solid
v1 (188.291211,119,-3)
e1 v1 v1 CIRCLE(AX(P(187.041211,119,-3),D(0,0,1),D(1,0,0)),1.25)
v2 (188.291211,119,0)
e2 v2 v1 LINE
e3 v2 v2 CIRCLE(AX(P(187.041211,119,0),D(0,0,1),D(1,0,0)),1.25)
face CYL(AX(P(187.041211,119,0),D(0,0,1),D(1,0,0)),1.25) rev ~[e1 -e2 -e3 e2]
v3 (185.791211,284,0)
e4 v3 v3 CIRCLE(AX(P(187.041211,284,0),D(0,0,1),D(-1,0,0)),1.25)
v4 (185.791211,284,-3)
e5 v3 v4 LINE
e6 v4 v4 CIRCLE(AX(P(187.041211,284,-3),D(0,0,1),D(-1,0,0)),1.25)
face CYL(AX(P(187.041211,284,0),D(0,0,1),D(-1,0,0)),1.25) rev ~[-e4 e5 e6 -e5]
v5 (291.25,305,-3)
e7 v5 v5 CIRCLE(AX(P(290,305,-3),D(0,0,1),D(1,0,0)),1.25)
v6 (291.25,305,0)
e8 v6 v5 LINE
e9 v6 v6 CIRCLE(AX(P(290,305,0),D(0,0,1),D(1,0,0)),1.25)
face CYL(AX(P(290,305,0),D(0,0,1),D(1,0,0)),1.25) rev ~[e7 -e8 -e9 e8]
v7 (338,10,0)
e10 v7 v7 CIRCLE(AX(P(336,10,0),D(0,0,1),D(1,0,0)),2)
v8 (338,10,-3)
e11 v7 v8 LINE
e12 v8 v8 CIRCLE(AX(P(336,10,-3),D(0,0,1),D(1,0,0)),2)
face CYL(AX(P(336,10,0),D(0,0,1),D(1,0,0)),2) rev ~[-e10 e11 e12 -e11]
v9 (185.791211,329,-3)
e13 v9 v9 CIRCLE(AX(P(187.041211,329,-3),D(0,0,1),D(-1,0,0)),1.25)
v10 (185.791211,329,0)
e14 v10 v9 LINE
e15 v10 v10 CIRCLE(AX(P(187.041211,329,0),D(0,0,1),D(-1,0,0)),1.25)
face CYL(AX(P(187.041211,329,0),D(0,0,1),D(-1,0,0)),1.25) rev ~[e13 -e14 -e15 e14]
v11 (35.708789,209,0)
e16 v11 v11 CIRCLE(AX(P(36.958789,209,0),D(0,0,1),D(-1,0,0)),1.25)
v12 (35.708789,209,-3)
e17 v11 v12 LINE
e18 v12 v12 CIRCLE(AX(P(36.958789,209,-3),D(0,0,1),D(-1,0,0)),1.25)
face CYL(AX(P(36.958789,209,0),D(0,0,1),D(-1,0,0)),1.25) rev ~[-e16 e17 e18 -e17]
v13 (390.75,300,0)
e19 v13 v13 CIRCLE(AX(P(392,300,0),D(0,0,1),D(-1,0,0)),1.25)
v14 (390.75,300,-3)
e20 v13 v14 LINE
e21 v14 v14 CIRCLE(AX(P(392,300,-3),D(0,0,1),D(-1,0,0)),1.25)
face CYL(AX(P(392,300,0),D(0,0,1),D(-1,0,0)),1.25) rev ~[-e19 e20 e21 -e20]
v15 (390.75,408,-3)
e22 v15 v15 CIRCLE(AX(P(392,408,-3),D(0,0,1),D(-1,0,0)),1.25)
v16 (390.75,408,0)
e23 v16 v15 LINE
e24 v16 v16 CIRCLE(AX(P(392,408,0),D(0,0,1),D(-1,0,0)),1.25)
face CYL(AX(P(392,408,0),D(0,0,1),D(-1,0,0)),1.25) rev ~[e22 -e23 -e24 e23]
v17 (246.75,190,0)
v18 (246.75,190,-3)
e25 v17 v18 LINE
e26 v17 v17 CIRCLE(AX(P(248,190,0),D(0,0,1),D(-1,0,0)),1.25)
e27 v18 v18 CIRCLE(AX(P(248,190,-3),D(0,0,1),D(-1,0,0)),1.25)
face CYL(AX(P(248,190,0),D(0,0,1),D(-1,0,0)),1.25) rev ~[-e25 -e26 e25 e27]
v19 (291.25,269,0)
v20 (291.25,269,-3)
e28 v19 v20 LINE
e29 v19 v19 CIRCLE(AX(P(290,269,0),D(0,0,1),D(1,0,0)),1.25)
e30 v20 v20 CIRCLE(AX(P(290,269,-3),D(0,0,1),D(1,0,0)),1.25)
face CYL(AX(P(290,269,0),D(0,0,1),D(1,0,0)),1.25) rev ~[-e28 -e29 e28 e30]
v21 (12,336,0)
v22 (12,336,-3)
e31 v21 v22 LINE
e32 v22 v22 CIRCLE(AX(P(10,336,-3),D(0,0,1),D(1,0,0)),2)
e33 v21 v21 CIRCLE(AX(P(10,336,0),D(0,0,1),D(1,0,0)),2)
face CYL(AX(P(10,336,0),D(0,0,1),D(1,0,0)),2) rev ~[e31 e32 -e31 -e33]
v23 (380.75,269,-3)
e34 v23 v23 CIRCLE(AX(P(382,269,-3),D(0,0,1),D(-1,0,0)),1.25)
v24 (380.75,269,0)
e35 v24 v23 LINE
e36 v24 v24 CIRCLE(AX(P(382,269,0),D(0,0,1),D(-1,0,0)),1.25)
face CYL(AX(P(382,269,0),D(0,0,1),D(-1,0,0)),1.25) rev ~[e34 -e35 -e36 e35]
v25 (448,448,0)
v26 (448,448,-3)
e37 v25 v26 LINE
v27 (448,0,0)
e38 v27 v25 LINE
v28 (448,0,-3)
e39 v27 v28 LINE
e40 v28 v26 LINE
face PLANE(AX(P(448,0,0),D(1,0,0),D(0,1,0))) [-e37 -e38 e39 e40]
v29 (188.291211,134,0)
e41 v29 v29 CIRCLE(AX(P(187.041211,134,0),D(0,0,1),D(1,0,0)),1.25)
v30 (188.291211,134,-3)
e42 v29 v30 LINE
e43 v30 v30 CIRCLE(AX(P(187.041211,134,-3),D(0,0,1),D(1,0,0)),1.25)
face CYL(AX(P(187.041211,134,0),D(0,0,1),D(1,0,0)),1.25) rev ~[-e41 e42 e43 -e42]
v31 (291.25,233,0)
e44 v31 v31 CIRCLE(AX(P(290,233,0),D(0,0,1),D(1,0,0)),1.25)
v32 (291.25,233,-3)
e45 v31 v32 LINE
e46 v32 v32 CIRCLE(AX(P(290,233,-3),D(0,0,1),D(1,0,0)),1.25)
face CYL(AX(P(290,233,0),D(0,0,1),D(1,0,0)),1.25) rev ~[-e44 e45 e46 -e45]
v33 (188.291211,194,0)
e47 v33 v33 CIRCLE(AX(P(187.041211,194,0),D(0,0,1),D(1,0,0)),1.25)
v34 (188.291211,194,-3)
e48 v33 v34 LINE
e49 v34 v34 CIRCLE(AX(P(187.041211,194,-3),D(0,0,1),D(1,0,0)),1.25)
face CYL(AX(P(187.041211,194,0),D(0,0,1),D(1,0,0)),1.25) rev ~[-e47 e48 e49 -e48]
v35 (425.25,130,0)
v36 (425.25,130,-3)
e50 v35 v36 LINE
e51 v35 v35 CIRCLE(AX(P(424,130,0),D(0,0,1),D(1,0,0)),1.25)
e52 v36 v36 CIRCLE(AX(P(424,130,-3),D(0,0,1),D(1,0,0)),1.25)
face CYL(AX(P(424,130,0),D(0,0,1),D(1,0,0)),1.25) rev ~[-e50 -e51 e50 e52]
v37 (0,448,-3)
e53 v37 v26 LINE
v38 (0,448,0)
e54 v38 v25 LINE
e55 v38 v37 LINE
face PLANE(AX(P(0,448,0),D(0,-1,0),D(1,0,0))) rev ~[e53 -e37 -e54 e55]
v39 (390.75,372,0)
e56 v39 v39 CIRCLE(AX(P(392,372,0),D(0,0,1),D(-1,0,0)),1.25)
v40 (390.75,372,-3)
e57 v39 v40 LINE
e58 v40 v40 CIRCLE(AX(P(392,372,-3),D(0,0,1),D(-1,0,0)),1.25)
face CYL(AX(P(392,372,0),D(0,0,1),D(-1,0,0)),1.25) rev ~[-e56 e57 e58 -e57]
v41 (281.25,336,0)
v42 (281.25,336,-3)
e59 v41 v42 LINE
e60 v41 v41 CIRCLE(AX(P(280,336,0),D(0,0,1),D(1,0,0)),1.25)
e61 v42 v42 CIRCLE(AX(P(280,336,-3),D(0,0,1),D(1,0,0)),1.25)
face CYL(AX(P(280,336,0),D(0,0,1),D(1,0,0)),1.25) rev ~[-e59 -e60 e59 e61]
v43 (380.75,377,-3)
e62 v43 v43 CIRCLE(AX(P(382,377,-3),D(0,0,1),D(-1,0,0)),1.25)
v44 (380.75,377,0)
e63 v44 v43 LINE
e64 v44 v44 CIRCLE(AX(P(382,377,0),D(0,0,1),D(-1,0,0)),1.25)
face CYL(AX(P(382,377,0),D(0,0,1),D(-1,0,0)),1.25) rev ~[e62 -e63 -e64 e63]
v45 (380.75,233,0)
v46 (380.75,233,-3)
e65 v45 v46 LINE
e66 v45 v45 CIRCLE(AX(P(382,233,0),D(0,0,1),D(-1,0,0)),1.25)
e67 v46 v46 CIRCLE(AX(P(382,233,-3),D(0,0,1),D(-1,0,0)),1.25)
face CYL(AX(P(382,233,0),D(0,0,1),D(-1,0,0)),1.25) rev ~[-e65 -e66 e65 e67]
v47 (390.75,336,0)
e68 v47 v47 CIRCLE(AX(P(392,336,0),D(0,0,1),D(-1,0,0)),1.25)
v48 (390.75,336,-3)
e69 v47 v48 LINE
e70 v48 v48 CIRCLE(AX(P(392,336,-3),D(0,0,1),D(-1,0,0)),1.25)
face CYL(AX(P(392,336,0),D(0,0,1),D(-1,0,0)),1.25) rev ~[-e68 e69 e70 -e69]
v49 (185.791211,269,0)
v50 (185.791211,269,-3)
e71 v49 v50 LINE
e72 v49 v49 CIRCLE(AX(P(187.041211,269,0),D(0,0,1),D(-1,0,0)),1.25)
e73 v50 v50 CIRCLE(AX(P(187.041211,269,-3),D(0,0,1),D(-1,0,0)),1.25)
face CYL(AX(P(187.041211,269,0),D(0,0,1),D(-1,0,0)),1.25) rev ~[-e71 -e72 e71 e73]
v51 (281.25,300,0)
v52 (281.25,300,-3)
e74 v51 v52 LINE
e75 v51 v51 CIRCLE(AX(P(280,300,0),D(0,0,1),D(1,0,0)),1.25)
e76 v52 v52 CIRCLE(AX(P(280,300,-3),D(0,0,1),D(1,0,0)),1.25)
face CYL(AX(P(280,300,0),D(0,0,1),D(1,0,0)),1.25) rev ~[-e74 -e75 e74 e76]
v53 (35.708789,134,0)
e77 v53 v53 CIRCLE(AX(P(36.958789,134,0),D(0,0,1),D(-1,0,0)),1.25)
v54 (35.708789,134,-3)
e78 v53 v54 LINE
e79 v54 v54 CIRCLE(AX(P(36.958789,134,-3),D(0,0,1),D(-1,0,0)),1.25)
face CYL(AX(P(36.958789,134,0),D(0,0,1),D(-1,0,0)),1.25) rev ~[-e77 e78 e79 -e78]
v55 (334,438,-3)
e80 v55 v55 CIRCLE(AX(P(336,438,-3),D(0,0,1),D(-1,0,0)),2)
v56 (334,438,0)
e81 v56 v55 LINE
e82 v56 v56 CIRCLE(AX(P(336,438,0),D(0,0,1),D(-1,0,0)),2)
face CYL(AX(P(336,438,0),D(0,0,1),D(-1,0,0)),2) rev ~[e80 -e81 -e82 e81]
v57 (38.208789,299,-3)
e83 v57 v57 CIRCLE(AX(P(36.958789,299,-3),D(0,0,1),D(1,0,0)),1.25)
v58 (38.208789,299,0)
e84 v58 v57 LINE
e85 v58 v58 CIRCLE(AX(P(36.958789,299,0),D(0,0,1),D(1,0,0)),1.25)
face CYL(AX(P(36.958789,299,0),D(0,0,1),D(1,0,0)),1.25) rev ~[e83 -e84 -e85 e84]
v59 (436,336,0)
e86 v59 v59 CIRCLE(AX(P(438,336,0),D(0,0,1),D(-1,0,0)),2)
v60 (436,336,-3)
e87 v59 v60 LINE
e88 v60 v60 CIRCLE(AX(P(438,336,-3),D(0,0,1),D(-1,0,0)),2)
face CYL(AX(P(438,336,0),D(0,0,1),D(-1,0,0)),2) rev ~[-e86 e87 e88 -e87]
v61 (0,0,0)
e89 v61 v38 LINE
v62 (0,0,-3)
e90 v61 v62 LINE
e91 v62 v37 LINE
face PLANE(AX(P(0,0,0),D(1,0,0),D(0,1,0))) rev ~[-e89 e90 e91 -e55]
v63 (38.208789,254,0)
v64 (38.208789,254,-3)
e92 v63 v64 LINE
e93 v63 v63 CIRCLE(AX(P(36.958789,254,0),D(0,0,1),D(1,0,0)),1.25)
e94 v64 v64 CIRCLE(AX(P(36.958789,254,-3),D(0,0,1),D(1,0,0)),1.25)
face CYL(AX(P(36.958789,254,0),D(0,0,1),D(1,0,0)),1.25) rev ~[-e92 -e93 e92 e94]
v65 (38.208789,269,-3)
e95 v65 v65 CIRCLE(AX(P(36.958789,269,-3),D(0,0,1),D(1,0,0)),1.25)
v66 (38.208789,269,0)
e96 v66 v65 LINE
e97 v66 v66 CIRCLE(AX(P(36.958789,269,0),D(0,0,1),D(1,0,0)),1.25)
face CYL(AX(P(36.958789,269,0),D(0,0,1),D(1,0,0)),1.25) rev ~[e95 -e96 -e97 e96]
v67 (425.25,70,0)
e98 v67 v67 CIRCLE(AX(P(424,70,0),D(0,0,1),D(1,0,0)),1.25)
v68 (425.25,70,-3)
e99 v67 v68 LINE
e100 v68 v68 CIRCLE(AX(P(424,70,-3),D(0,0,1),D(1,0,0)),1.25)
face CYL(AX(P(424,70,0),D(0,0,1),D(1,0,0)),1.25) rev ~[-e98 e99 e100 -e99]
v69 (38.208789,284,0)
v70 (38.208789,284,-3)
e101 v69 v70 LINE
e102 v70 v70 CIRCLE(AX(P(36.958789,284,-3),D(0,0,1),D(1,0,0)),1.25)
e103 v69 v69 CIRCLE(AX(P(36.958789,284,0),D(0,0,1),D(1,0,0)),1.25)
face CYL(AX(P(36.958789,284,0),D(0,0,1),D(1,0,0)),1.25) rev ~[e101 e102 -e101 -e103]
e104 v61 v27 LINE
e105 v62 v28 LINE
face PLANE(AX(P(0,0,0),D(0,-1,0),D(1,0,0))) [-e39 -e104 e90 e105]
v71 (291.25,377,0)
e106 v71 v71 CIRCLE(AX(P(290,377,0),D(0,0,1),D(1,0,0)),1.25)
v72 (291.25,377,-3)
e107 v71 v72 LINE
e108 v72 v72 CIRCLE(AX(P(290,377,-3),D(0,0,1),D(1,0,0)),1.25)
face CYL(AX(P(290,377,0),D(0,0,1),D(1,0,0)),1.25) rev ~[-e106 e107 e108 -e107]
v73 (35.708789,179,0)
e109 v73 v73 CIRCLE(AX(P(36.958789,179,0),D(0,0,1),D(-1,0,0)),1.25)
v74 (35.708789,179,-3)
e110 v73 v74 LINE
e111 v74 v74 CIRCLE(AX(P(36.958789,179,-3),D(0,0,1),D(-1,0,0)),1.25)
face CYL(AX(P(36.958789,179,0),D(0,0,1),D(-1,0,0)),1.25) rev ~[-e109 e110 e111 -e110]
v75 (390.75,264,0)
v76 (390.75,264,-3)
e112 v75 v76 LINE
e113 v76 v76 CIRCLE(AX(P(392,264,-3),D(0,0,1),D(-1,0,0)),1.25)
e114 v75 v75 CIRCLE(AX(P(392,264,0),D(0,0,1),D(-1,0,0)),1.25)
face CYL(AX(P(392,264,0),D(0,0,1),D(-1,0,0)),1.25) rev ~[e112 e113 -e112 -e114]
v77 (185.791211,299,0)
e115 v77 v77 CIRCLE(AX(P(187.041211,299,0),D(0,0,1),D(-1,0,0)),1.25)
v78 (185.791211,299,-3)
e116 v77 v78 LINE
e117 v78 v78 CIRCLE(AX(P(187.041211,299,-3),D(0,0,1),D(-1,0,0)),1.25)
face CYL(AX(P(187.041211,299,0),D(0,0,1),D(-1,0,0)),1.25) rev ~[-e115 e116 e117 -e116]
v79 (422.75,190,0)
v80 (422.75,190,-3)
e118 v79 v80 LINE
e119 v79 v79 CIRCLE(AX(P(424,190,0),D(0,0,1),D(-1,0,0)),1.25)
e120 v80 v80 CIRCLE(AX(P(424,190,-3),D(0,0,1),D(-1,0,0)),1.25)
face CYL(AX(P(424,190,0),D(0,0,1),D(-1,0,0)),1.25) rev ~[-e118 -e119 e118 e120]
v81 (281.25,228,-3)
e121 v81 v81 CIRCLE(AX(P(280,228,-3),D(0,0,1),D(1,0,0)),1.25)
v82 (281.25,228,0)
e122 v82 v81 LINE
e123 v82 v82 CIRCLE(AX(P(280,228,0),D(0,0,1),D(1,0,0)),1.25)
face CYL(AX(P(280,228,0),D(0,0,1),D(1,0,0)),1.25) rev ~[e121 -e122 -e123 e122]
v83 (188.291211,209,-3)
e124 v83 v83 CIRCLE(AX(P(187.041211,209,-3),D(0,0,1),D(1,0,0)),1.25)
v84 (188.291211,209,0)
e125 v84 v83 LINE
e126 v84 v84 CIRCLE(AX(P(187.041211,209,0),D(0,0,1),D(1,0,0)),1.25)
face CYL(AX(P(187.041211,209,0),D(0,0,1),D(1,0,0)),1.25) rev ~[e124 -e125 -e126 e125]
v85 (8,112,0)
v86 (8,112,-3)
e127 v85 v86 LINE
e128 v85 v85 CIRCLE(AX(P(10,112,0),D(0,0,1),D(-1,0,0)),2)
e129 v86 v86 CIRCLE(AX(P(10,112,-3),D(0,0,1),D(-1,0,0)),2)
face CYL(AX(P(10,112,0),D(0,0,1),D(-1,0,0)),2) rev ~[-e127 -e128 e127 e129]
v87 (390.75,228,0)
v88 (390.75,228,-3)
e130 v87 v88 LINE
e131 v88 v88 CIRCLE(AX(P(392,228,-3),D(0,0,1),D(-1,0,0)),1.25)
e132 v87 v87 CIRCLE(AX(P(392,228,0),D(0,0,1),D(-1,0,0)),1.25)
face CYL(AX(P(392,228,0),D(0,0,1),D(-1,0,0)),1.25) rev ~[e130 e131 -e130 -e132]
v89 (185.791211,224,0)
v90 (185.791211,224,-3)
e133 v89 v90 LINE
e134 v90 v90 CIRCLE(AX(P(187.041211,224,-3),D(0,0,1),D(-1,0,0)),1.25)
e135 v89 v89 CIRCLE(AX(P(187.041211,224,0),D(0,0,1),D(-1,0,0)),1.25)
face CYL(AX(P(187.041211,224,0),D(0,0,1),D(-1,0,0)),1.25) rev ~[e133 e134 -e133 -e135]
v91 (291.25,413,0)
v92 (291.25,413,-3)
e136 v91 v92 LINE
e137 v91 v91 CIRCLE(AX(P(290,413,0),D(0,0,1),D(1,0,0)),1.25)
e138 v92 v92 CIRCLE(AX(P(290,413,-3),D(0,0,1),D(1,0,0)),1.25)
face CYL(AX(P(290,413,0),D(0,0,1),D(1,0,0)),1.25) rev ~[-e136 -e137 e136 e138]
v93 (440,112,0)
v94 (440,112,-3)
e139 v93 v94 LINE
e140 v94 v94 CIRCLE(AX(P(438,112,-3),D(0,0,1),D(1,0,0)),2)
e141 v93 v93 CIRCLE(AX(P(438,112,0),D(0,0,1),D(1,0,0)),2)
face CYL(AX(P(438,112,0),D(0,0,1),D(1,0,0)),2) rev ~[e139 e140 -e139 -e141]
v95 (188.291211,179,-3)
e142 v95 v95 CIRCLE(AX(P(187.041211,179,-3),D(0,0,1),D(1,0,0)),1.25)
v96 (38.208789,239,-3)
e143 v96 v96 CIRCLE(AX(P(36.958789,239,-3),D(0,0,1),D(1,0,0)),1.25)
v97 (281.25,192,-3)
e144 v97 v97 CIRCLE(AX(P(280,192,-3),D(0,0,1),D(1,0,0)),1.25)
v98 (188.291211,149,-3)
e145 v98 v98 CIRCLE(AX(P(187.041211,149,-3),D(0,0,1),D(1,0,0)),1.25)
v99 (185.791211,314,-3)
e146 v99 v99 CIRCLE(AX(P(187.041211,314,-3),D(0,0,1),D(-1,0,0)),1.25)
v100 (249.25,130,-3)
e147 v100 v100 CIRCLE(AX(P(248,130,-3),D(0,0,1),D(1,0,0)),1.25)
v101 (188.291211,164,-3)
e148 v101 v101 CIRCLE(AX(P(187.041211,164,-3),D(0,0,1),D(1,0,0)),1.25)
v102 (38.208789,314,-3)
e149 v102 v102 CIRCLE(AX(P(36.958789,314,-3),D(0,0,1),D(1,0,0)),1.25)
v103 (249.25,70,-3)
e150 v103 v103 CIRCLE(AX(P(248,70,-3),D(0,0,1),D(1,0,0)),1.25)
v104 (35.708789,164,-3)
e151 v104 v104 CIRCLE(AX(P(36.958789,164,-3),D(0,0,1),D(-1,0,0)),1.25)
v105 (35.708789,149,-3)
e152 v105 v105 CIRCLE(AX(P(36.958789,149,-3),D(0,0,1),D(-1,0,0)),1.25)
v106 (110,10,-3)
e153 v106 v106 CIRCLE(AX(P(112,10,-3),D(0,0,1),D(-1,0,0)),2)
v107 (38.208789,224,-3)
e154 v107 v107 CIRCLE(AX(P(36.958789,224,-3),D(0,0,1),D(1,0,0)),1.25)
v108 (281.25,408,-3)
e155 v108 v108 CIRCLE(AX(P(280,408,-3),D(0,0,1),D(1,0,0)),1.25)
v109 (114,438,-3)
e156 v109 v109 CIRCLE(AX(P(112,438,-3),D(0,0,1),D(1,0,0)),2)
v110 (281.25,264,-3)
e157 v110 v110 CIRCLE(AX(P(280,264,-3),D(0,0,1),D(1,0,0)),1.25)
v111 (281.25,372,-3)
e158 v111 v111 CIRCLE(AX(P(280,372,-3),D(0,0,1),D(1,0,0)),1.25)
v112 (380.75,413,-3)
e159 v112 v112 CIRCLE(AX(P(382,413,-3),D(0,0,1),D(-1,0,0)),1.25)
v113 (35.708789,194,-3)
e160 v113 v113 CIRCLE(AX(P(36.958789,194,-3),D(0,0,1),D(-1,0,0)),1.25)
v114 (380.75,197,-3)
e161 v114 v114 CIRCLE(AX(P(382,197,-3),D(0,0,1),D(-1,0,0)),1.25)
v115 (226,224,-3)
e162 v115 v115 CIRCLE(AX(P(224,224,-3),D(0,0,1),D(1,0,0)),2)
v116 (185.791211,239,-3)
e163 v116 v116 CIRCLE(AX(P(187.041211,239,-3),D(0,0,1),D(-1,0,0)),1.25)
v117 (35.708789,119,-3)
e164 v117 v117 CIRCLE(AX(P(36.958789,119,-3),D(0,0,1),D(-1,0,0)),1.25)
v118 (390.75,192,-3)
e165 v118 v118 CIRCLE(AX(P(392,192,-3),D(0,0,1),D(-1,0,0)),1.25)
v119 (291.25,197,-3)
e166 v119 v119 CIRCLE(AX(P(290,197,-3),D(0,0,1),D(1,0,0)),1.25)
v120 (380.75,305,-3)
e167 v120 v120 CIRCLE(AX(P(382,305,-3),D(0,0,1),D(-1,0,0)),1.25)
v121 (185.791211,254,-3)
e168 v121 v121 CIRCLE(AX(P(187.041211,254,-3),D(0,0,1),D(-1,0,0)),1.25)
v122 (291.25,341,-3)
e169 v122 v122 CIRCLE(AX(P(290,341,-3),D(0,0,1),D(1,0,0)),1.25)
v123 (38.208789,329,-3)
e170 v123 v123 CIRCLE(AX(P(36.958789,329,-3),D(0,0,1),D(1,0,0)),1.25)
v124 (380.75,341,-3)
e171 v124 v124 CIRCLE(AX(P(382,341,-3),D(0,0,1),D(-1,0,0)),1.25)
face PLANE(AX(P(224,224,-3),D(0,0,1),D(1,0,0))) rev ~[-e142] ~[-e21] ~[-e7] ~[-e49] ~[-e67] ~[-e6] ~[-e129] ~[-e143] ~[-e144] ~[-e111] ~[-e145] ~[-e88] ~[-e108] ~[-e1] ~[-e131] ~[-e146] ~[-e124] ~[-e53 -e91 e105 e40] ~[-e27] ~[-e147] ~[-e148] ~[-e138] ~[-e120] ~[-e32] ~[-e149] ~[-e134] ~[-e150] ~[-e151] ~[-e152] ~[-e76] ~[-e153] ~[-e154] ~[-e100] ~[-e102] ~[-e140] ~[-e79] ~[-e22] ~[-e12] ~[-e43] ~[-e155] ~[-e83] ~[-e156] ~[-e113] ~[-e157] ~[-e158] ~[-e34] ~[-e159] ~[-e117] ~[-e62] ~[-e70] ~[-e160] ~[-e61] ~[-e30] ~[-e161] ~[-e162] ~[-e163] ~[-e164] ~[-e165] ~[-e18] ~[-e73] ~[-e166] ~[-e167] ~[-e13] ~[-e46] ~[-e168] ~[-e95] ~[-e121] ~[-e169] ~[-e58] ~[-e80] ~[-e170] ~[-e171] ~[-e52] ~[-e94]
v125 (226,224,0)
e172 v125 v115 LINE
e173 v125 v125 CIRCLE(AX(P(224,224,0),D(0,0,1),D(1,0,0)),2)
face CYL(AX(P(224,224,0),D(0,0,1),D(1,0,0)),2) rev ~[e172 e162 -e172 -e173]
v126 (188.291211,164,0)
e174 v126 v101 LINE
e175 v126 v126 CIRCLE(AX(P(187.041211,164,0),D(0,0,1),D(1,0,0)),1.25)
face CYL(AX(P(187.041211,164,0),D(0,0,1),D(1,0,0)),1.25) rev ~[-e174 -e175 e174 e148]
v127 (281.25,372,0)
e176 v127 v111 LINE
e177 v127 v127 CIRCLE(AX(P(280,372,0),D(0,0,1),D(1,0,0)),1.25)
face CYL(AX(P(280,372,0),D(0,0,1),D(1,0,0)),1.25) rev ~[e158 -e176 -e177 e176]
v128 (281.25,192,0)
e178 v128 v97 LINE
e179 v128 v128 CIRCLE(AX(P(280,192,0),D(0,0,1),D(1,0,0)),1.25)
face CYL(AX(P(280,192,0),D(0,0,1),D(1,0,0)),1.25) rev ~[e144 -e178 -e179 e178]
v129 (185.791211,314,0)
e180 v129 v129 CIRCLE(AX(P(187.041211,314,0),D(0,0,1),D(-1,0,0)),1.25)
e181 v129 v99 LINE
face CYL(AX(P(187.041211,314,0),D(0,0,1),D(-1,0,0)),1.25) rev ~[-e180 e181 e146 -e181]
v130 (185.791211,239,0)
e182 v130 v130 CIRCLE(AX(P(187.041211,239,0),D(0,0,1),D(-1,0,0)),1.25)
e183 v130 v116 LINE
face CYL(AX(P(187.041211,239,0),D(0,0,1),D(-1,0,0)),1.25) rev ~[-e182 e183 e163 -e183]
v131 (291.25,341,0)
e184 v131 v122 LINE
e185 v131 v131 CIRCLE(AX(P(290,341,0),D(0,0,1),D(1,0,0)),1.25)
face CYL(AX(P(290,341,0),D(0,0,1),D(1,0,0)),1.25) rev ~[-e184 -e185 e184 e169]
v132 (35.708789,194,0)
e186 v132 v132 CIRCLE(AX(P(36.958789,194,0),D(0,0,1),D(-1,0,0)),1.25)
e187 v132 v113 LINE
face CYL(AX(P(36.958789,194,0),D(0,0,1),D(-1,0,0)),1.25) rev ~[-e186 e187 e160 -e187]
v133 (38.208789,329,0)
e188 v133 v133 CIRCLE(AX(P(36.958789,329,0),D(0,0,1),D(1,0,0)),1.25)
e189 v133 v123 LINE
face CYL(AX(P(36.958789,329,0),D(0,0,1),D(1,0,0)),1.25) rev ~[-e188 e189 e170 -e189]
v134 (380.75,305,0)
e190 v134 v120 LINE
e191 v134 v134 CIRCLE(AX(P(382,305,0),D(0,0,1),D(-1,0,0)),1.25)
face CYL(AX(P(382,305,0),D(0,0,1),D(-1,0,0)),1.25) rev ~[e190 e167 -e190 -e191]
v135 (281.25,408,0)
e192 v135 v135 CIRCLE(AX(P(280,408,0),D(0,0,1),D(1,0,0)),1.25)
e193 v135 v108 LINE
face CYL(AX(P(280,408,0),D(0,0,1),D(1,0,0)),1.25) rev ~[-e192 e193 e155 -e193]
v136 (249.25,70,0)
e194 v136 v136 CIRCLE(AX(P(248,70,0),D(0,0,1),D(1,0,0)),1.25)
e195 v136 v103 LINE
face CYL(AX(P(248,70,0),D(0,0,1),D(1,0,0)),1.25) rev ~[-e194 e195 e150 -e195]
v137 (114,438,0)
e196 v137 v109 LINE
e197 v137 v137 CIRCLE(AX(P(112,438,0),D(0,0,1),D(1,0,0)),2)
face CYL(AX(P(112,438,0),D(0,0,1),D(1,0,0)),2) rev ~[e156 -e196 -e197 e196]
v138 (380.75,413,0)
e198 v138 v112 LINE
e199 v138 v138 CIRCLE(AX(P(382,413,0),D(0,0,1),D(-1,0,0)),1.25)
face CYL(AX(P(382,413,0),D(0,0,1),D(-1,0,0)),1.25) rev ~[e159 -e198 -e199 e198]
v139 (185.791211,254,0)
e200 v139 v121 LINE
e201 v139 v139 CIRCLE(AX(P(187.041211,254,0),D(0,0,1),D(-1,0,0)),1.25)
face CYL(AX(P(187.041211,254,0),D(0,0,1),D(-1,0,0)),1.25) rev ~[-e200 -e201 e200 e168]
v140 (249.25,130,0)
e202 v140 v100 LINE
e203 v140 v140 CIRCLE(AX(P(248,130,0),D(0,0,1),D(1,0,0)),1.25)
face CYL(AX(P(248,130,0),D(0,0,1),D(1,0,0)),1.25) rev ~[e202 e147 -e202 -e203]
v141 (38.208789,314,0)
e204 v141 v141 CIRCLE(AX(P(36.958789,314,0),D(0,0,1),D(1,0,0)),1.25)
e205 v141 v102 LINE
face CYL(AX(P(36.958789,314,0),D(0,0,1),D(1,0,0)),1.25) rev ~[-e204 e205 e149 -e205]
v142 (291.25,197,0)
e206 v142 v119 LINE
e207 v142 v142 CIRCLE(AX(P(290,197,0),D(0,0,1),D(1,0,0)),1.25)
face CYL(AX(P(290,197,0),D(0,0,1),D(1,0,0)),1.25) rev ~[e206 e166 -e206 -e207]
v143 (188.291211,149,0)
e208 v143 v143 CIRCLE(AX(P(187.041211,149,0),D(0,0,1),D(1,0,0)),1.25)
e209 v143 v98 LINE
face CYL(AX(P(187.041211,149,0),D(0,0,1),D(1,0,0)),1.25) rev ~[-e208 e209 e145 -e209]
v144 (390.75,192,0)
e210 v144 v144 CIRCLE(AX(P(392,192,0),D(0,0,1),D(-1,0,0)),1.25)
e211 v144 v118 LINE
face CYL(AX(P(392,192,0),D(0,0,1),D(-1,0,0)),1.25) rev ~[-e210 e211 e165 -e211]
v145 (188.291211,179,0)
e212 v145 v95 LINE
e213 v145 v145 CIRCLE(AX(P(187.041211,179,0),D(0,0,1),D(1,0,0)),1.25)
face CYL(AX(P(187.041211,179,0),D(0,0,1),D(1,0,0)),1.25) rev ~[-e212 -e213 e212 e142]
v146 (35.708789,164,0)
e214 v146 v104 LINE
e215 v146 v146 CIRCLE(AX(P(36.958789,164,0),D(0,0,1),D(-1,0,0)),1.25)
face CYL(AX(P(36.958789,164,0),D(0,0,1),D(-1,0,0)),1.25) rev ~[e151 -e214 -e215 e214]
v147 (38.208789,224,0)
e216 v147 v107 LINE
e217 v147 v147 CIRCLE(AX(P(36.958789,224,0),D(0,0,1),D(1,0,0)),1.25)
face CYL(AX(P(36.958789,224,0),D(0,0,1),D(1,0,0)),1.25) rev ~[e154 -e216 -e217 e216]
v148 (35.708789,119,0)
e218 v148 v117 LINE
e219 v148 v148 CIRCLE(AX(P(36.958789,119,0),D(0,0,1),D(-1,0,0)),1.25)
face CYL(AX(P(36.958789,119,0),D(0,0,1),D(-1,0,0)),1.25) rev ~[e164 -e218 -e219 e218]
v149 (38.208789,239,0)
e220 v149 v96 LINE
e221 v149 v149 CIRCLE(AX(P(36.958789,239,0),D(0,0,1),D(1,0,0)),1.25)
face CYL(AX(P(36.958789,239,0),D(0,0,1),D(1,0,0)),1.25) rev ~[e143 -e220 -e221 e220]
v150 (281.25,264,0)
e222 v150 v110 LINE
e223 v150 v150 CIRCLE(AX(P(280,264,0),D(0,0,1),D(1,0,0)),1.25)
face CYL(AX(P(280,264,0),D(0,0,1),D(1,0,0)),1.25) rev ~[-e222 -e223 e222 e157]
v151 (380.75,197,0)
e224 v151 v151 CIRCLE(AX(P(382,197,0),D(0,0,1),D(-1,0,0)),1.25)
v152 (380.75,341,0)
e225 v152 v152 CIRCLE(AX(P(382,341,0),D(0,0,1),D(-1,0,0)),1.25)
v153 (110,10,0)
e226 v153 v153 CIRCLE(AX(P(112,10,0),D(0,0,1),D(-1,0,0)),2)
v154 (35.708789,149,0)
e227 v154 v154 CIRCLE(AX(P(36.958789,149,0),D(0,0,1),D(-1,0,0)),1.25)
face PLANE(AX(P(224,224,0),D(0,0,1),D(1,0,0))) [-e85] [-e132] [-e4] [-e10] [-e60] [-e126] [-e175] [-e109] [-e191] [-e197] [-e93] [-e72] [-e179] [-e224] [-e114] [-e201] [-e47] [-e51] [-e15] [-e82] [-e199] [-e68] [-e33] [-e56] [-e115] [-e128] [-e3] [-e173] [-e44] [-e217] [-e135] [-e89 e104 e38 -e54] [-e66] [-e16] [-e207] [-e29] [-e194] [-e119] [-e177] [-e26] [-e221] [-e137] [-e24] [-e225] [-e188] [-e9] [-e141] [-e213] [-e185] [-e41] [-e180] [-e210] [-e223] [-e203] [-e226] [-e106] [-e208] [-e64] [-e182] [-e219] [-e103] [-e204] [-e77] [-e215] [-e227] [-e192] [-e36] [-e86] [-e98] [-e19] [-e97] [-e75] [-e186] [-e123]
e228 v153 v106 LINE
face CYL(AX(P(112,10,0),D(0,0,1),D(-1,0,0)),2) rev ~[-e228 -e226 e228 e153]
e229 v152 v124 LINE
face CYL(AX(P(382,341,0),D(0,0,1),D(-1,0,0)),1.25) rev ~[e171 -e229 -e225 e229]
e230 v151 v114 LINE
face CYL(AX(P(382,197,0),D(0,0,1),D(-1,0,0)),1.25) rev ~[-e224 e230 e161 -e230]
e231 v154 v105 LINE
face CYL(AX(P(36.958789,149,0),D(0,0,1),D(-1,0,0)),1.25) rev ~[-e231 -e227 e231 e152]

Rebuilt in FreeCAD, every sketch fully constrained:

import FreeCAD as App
import Part
import Sketcher
from FreeCAD import Vector
Q = App.Units.Quantity


def add_polygon(sketch, points):
    """Adds a closed chain of lines whose ends are joined by coincident constraints."""
    first, n = sketch.GeometryCount, len(points)
    for a, b in zip(points, points[1:] + points[:1]):
        sketch.addGeometry(Part.LineSegment(App.Vector(*a, 0), App.Vector(*b, 0)), False)
    for i in range(n):
        sketch.addConstraint(Sketcher.Constraint("Coincident", first + i, 2, first + (i + 1) % n, 1))

doc = App.newDocument("Part")
body = doc.addObject("PartDesign::Body", "Body")

sketch1 = body.newObject("Sketcher::SketchObject", "Sketch")
sketch1.AttachmentSupport = (doc.getObject("XY_Plane"), [""])
sketch1.MapMode = "FlatFace"
add_polygon(sketch1, [(0, 448), (0, 0), (448, 0), (448, 448)])
sketch1.addGeometry(Part.Circle(Vector(112, 10, 0), Vector(0, 0, 1), 2), False)
sketch1.addGeometry(Part.Circle(Vector(10, 112, 0), Vector(0, 0, 1), 2), False)
sketch1.addGeometry(Part.Circle(Vector(36.958789, 119, 0), Vector(0, 0, 1), 1.25), False)
sketch1.addGeometry(Part.Circle(Vector(36.958789, 134, 0), Vector(0, 0, 1), 1.25), False)
sketch1.addGeometry(Part.Circle(Vector(36.958789, 149, 0), Vector(0, 0, 1), 1.25), False)
sketch1.addGeometry(Part.Circle(Vector(36.958789, 164, 0), Vector(0, 0, 1), 1.25), False)
sketch1.addGeometry(Part.Circle(Vector(36.958789, 179, 0), Vector(0, 0, 1), 1.25), False)
sketch1.addGeometry(Part.Circle(Vector(36.958789, 194, 0), Vector(0, 0, 1), 1.25), False)
sketch1.addGeometry(Part.Circle(Vector(36.958789, 209, 0), Vector(0, 0, 1), 1.25), False)
sketch1.addGeometry(Part.Circle(Vector(187.041211, 119, 0), Vector(0, 0, 1), 1.25), False)
sketch1.addGeometry(Part.Circle(Vector(187.041211, 134, 0), Vector(0, 0, 1), 1.25), False)
sketch1.addGeometry(Part.Circle(Vector(187.041211, 149, 0), Vector(0, 0, 1), 1.25), False)
sketch1.addGeometry(Part.Circle(Vector(187.041211, 164, 0), Vector(0, 0, 1), 1.25), False)
sketch1.addGeometry(Part.Circle(Vector(187.041211, 179, 0), Vector(0, 0, 1), 1.25), False)
sketch1.addGeometry(Part.Circle(Vector(187.041211, 194, 0), Vector(0, 0, 1), 1.25), False)
sketch1.addGeometry(Part.Circle(Vector(187.041211, 209, 0), Vector(0, 0, 1), 1.25), False)
sketch1.addGeometry(Part.Circle(Vector(248, 70, 0), Vector(0, 0, 1), 1.25), False)
sketch1.addGeometry(Part.Circle(Vector(336, 10, 0), Vector(0, 0, 1), 2), False)
sketch1.addGeometry(Part.Circle(Vector(424, 70, 0), Vector(0, 0, 1), 1.25), False)
sketch1.addGeometry(Part.Circle(Vector(438, 112, 0), Vector(0, 0, 1), 2), False)
sketch1.addGeometry(Part.Circle(Vector(248, 130, 0), Vector(0, 0, 1), 1.25), False)
sketch1.addGeometry(Part.Circle(Vector(248, 190, 0), Vector(0, 0, 1), 1.25), False)
sketch1.addGeometry(Part.Circle(Vector(280, 192, 0), Vector(0, 0, 1), 1.25), False)
sketch1.addGeometry(Part.Circle(Vector(290, 197, 0), Vector(0, 0, 1), 1.25), False)
sketch1.addGeometry(Part.Circle(Vector(424, 130, 0), Vector(0, 0, 1), 1.25), False)
sketch1.addGeometry(Part.Circle(Vector(382, 197, 0), Vector(0, 0, 1), 1.25), False)
sketch1.addGeometry(Part.Circle(Vector(392, 192, 0), Vector(0, 0, 1), 1.25), False)
sketch1.addGeometry(Part.Circle(Vector(424, 190, 0), Vector(0, 0, 1), 1.25), False)
sketch1.addGeometry(Part.Circle(Vector(36.958789, 224, 0), Vector(0, 0, 1), 1.25), False)
sketch1.addGeometry(Part.Circle(Vector(36.958789, 239, 0), Vector(0, 0, 1), 1.25), False)
sketch1.addGeometry(Part.Circle(Vector(36.958789, 254, 0), Vector(0, 0, 1), 1.25), False)
sketch1.addGeometry(Part.Circle(Vector(36.958789, 269, 0), Vector(0, 0, 1), 1.25), False)
sketch1.addGeometry(Part.Circle(Vector(36.958789, 284, 0), Vector(0, 0, 1), 1.25), False)
sketch1.addGeometry(Part.Circle(Vector(36.958789, 299, 0), Vector(0, 0, 1), 1.25), False)
sketch1.addGeometry(Part.Circle(Vector(36.958789, 314, 0), Vector(0, 0, 1), 1.25), False)
sketch1.addGeometry(Part.Circle(Vector(36.958789, 329, 0), Vector(0, 0, 1), 1.25), False)
sketch1.addGeometry(Part.Circle(Vector(187.041211, 224, 0), Vector(0, 0, 1), 1.25), False)
sketch1.addGeometry(Part.Circle(Vector(187.041211, 239, 0), Vector(0, 0, 1), 1.25), False)
sketch1.addGeometry(Part.Circle(Vector(187.041211, 254, 0), Vector(0, 0, 1), 1.25), False)
sketch1.addGeometry(Part.Circle(Vector(187.041211, 269, 0), Vector(0, 0, 1), 1.25), False)
sketch1.addGeometry(Part.Circle(Vector(187.041211, 284, 0), Vector(0, 0, 1), 1.25), False)
sketch1.addGeometry(Part.Circle(Vector(187.041211, 299, 0), Vector(0, 0, 1), 1.25), False)
sketch1.addGeometry(Part.Circle(Vector(187.041211, 314, 0), Vector(0, 0, 1), 1.25), False)
sketch1.addGeometry(Part.Circle(Vector(187.041211, 329, 0), Vector(0, 0, 1), 1.25), False)
sketch1.addGeometry(Part.Circle(Vector(10, 336, 0), Vector(0, 0, 1), 2), False)
sketch1.addGeometry(Part.Circle(Vector(112, 438, 0), Vector(0, 0, 1), 2), False)
sketch1.addGeometry(Part.Circle(Vector(224, 224, 0), Vector(0, 0, 1), 2), False)
sketch1.addGeometry(Part.Circle(Vector(280, 228, 0), Vector(0, 0, 1), 1.25), False)
sketch1.addGeometry(Part.Circle(Vector(290, 233, 0), Vector(0, 0, 1), 1.25), False)
sketch1.addGeometry(Part.Circle(Vector(280, 264, 0), Vector(0, 0, 1), 1.25), False)
sketch1.addGeometry(Part.Circle(Vector(290, 269, 0), Vector(0, 0, 1), 1.25), False)
sketch1.addGeometry(Part.Circle(Vector(280, 300, 0), Vector(0, 0, 1), 1.25), False)
sketch1.addGeometry(Part.Circle(Vector(290, 305, 0), Vector(0, 0, 1), 1.25), False)
sketch1.addGeometry(Part.Circle(Vector(382, 233, 0), Vector(0, 0, 1), 1.25), False)
sketch1.addGeometry(Part.Circle(Vector(382, 269, 0), Vector(0, 0, 1), 1.25), False)
sketch1.addGeometry(Part.Circle(Vector(392, 228, 0), Vector(0, 0, 1), 1.25), False)
sketch1.addGeometry(Part.Circle(Vector(392, 264, 0), Vector(0, 0, 1), 1.25), False)
sketch1.addGeometry(Part.Circle(Vector(382, 305, 0), Vector(0, 0, 1), 1.25), False)
sketch1.addGeometry(Part.Circle(Vector(392, 300, 0), Vector(0, 0, 1), 1.25), False)
sketch1.addGeometry(Part.Circle(Vector(280, 336, 0), Vector(0, 0, 1), 1.25), False)
sketch1.addGeometry(Part.Circle(Vector(290, 341, 0), Vector(0, 0, 1), 1.25), False)
sketch1.addGeometry(Part.Circle(Vector(280, 372, 0), Vector(0, 0, 1), 1.25), False)
sketch1.addGeometry(Part.Circle(Vector(290, 377, 0), Vector(0, 0, 1), 1.25), False)
sketch1.addGeometry(Part.Circle(Vector(280, 408, 0), Vector(0, 0, 1), 1.25), False)
sketch1.addGeometry(Part.Circle(Vector(290, 413, 0), Vector(0, 0, 1), 1.25), False)
sketch1.addGeometry(Part.Circle(Vector(382, 341, 0), Vector(0, 0, 1), 1.25), False)
sketch1.addGeometry(Part.Circle(Vector(382, 377, 0), Vector(0, 0, 1), 1.25), False)
sketch1.addGeometry(Part.Circle(Vector(392, 336, 0), Vector(0, 0, 1), 1.25), False)
sketch1.addGeometry(Part.Circle(Vector(438, 336, 0), Vector(0, 0, 1), 2), False)
sketch1.addGeometry(Part.Circle(Vector(392, 372, 0), Vector(0, 0, 1), 1.25), False)
sketch1.addGeometry(Part.Circle(Vector(336, 438, 0), Vector(0, 0, 1), 2), False)
sketch1.addGeometry(Part.Circle(Vector(382, 413, 0), Vector(0, 0, 1), 1.25), False)
sketch1.addGeometry(Part.Circle(Vector(392, 408, 0), Vector(0, 0, 1), 1.25), False)
sketch1.addConstraint([
    Sketcher.Constraint("Vertical", 0),
    Sketcher.Constraint("Horizontal", 1),
    Sketcher.Constraint("Vertical", 2),
    Sketcher.Constraint("Horizontal", 3),
    Sketcher.Constraint("Coincident", 0, 2, -1, 1),
    Sketcher.Constraint("Equal", 4, 5),
    Sketcher.Constraint("Equal", 6, 7),
    Sketcher.Constraint("Equal", 7, 8),
    Sketcher.Constraint("Equal", 8, 9),
    Sketcher.Constraint("Equal", 9, 10),
    Sketcher.Constraint("Equal", 10, 11),
    Sketcher.Constraint("Equal", 11, 12),
    Sketcher.Constraint("Equal", 12, 13),
    Sketcher.Constraint("Equal", 13, 14),
    Sketcher.Constraint("Equal", 14, 15),
    Sketcher.Constraint("Equal", 15, 16),
    Sketcher.Constraint("Equal", 16, 17),
    Sketcher.Constraint("Equal", 17, 18),
    Sketcher.Constraint("Equal", 18, 19),
    Sketcher.Constraint("Equal", 19, 20),
    Sketcher.Constraint("Equal", 5, 21),
    Sketcher.Constraint("Equal", 20, 22),
    Sketcher.Constraint("Equal", 21, 23),
    Sketcher.Constraint("Equal", 22, 24),
    Sketcher.Constraint("Equal", 24, 25),
    Sketcher.Constraint("Equal", 25, 26),
    Sketcher.Constraint("Equal", 26, 27),
    Sketcher.Constraint("Equal", 27, 28),
    Sketcher.Constraint("Equal", 28, 29),
    Sketcher.Constraint("Equal", 29, 30),
    Sketcher.Constraint("Equal", 30, 31),
    Sketcher.Constraint("Equal", 31, 32),
    Sketcher.Constraint("Equal", 32, 33),
    Sketcher.Constraint("Equal", 33, 34),
    Sketcher.Constraint("Equal", 34, 35),
    Sketcher.Constraint("Equal", 35, 36),
    Sketcher.Constraint("Equal", 36, 37),
    Sketcher.Constraint("Equal", 37, 38),
    Sketcher.Constraint("Equal", 38, 39),
    Sketcher.Constraint("Equal", 39, 40),
    Sketcher.Constraint("Equal", 40, 41),
    Sketcher.Constraint("Equal", 41, 42),
    Sketcher.Constraint("Equal", 42, 43),
    Sketcher.Constraint("Equal", 43, 44),
    Sketcher.Constraint("Equal", 44, 45),
    Sketcher.Constraint("Equal", 45, 46),
    Sketcher.Constraint("Equal", 46, 47),
    Sketcher.Constraint("Equal", 23, 48),
    Sketcher.Constraint("Equal", 48, 49),
    Sketcher.Constraint("Equal", 49, 50),
    Sketcher.Constraint("Equal", 47, 51),
    Sketcher.Constraint("Equal", 51, 52),
    Sketcher.Constraint("Equal", 52, 53),
    Sketcher.Constraint("Equal", 53, 54),
    Sketcher.Constraint("Equal", 54, 55),
    Sketcher.Constraint("Equal", 55, 56),
    Sketcher.Constraint("Equal", 56, 57),
    Sketcher.Constraint("Equal", 57, 58),
    Sketcher.Constraint("Equal", 58, 59),
    Sketcher.Constraint("Equal", 59, 60),
    Sketcher.Constraint("Equal", 60, 61),
    Sketcher.Constraint("Equal", 61, 62),
    Sketcher.Constraint("Equal", 62, 63),
    Sketcher.Constraint("Equal", 63, 64),
    Sketcher.Constraint("Equal", 64, 65),
    Sketcher.Constraint("Equal", 65, 66),
    Sketcher.Constraint("Equal", 66, 67),
    Sketcher.Constraint("Equal", 67, 68),
    Sketcher.Constraint("Equal", 68, 69),
    Sketcher.Constraint("Equal", 69, 70),
    Sketcher.Constraint("Equal", 70, 71),
    Sketcher.Constraint("Equal", 50, 72),
    Sketcher.Constraint("Equal", 71, 73),
    Sketcher.Constraint("Equal", 72, 74),
    Sketcher.Constraint("Equal", 73, 75),
    Sketcher.Constraint("Equal", 75, 76),
    Sketcher.Constraint("Horizontal", 6, 3, 13, 3),
    Sketcher.Constraint("Horizontal", 7, 3, 14, 3),
    Sketcher.Constraint("Horizontal", 8, 3, 15, 3),
    Sketcher.Constraint("Horizontal", 9, 3, 16, 3),
    Sketcher.Constraint("Horizontal", 10, 3, 17, 3),
    Sketcher.Constraint("Horizontal", 11, 3, 18, 3),
    Sketcher.Constraint("Horizontal", 12, 3, 19, 3),
    Sketcher.Constraint("Horizontal", 4, 3, 21, 3),
    Sketcher.Constraint("Horizontal", 20, 3, 22, 3),
    Sketcher.Constraint("Horizontal", 5, 3, 23, 3),
    Sketcher.Constraint("Horizontal", 24, 3, 28, 3),
    Sketcher.Constraint("Horizontal", 27, 3, 29, 3),
    Sketcher.Constraint("Horizontal", 26, 3, 30, 3),
    Sketcher.Constraint("Horizontal", 25, 3, 31, 3),
    Sketcher.Constraint("Horizontal", 32, 3, 40, 3),
    Sketcher.Constraint("Horizontal", 33, 3, 41, 3),
    Sketcher.Constraint("Horizontal", 34, 3, 42, 3),
    Sketcher.Constraint("Horizontal", 35, 3, 43, 3),
    Sketcher.Constraint("Horizontal", 36, 3, 44, 3),
    Sketcher.Constraint("Horizontal", 37, 3, 45, 3),
    Sketcher.Constraint("Horizontal", 38, 3, 46, 3),
    Sketcher.Constraint("Horizontal", 39, 3, 47, 3),
    Sketcher.Constraint("Horizontal", 40, 3, 50, 3),
    Sketcher.Constraint("Horizontal", 43, 3, 54, 3),
    Sketcher.Constraint("Horizontal", 52, 3, 57, 3),
    Sketcher.Constraint("Horizontal", 54, 3, 58, 3),
    Sketcher.Constraint("Horizontal", 51, 3, 59, 3),
    Sketcher.Constraint("Horizontal", 53, 3, 60, 3),
    Sketcher.Constraint("Horizontal", 56, 3, 61, 3),
    Sketcher.Constraint("Horizontal", 55, 3, 62, 3),
    Sketcher.Constraint("Horizontal", 48, 3, 63, 3),
    Sketcher.Constraint("Horizontal", 64, 3, 69, 3),
    Sketcher.Constraint("Horizontal", 66, 3, 70, 3),
    Sketcher.Constraint("Horizontal", 63, 3, 71, 3),
    Sketcher.Constraint("Horizontal", 71, 3, 72, 3),
    Sketcher.Constraint("Horizontal", 65, 3, 73, 3),
    Sketcher.Constraint("Horizontal", 49, 3, 74, 3),
    Sketcher.Constraint("Horizontal", 68, 3, 75, 3),
    Sketcher.Constraint("Horizontal", 67, 3, 76, 3),
    Sketcher.Constraint("Vertical", 6, 3, 7, 3),
    Sketcher.Constraint("Vertical", 7, 3, 8, 3),
    Sketcher.Constraint("Vertical", 8, 3, 9, 3),
    Sketcher.Constraint("Vertical", 9, 3, 10, 3),
    Sketcher.Constraint("Vertical", 10, 3, 11, 3),
    Sketcher.Constraint("Vertical", 11, 3, 12, 3),
    Sketcher.Constraint("Vertical", 13, 3, 14, 3),
    Sketcher.Constraint("Vertical", 14, 3, 15, 3),
    Sketcher.Constraint("Vertical", 15, 3, 16, 3),
    Sketcher.Constraint("Vertical", 16, 3, 17, 3),
    Sketcher.Constraint("Vertical", 17, 3, 18, 3),
    Sketcher.Constraint("Vertical", 18, 3, 19, 3),
    Sketcher.Constraint("Vertical", 20, 3, 24, 3),
    Sketcher.Constraint("Vertical", 24, 3, 25, 3),
    Sketcher.Constraint("Vertical", 22, 3, 28, 3),
    Sketcher.Constraint("Vertical", 28, 3, 31, 3),
    Sketcher.Constraint("Vertical", 12, 3, 32, 3),
    Sketcher.Constraint("Vertical", 32, 3, 33, 3),
    Sketcher.Constraint("Vertical", 33, 3, 34, 3),
    Sketcher.Constraint("Vertical", 34, 3, 35, 3),
    Sketcher.Constraint("Vertical", 35, 3, 36, 3),
    Sketcher.Constraint("Vertical", 36, 3, 37, 3),
    Sketcher.Constraint("Vertical", 37, 3, 38, 3),
    Sketcher.Constraint("Vertical", 38, 3, 39, 3),
    Sketcher.Constraint("Vertical", 19, 3, 40, 3),
    Sketcher.Constraint("Vertical", 40, 3, 41, 3),
    Sketcher.Constraint("Vertical", 41, 3, 42, 3),
    Sketcher.Constraint("Vertical", 42, 3, 43, 3),
    Sketcher.Constraint("Vertical", 43, 3, 44, 3),
    Sketcher.Constraint("Vertical", 44, 3, 45, 3),
    Sketcher.Constraint("Vertical", 45, 3, 46, 3),
    Sketcher.Constraint("Vertical", 46, 3, 47, 3),
    Sketcher.Constraint("Vertical", 5, 3, 48, 3),
    Sketcher.Constraint("Vertical", 4, 3, 49, 3),
    Sketcher.Constraint("Vertical", 26, 3, 51, 3),
    Sketcher.Constraint("Vertical", 27, 3, 52, 3),
    Sketcher.Constraint("Vertical", 51, 3, 53, 3),
    Sketcher.Constraint("Vertical", 52, 3, 54, 3),
    Sketcher.Constraint("Vertical", 53, 3, 55, 3),
    Sketcher.Constraint("Vertical", 54, 3, 56, 3),
    Sketcher.Constraint("Vertical", 29, 3, 57, 3),
    Sketcher.Constraint("Vertical", 57, 3, 58, 3),
    Sketcher.Constraint("Vertical", 30, 3, 59, 3),
    Sketcher.Constraint("Vertical", 59, 3, 60, 3),
    Sketcher.Constraint("Vertical", 58, 3, 61, 3),
    Sketcher.Constraint("Vertical", 60, 3, 62, 3),
    Sketcher.Constraint("Vertical", 55, 3, 63, 3),
    Sketcher.Constraint("Vertical", 56, 3, 64, 3),
    Sketcher.Constraint("Vertical", 63, 3, 65, 3),
    Sketcher.Constraint("Vertical", 64, 3, 66, 3),
    Sketcher.Constraint("Vertical", 65, 3, 67, 3),
    Sketcher.Constraint("Vertical", 66, 3, 68, 3),
    Sketcher.Constraint("Vertical", 61, 3, 69, 3),
    Sketcher.Constraint("Vertical", 69, 3, 70, 3),
    Sketcher.Constraint("Vertical", 62, 3, 71, 3),
    Sketcher.Constraint("Vertical", 23, 3, 72, 3),
    Sketcher.Constraint("Vertical", 71, 3, 73, 3),
    Sketcher.Constraint("Vertical", 21, 3, 74, 3),
    Sketcher.Constraint("Vertical", 70, 3, 75, 3),
    Sketcher.Constraint("Vertical", 73, 3, 76, 3),
    Sketcher.Constraint("Equal", 3, 0),
    Sketcher.Constraint("Diameter", 4, Q("4 mm")),
    Sketcher.Constraint("Diameter", 6, Q("2.5 mm")),
    Sketcher.Constraint("DistanceX", 1, 1, 1, 2, Q("448 mm")),
    Sketcher.Constraint("DistanceX", -1, 1, 4, 3, Q("112 mm")),
    Sketcher.Constraint("DistanceY", -1, 1, 4, 3, Q("10 mm")),
    Sketcher.Constraint("DistanceX", -1, 1, 5, 3, Q("10 mm")),
    Sketcher.Constraint("DistanceY", -1, 1, 5, 3, Q("112 mm")),
    Sketcher.Constraint("DistanceY", -1, 1, 6, 3, Q("119 mm")),
    Sketcher.Constraint("DistanceY", -1, 1, 7, 3, Q("134 mm")),
    Sketcher.Constraint("DistanceY", -1, 1, 8, 3, Q("149 mm")),
    Sketcher.Constraint("DistanceY", -1, 1, 9, 3, Q("164 mm")),
    Sketcher.Constraint("DistanceY", -1, 1, 10, 3, Q("179 mm")),
    Sketcher.Constraint("DistanceY", -1, 1, 11, 3, Q("194 mm")),
    Sketcher.Constraint("DistanceY", -1, 1, 12, 3, Q("209 mm")),
    Sketcher.Constraint("DistanceX", -1, 1, 20, 3, Q("248 mm")),
    Sketcher.Constraint("DistanceY", -1, 1, 20, 3, Q("70 mm")),
    Sketcher.Constraint("DistanceX", -1, 1, 21, 3, Q("336 mm")),
    Sketcher.Constraint("DistanceX", -1, 1, 22, 3, Q("424 mm")),
    Sketcher.Constraint("DistanceX", -1, 1, 23, 3, Q("438 mm")),
    Sketcher.Constraint("DistanceY", -1, 1, 24, 3, Q("130 mm")),
    Sketcher.Constraint("DistanceY", -1, 1, 25, 3, Q("190 mm")),
    Sketcher.Constraint("DistanceX", -1, 1, 26, 3, Q("280 mm")),
    Sketcher.Constraint("DistanceY", -1, 1, 26, 3, Q("192 mm")),
    Sketcher.Constraint("DistanceX", -1, 1, 27, 3, Q("290 mm")),
    Sketcher.Constraint("DistanceY", -1, 1, 27, 3, Q("197 mm")),
    Sketcher.Constraint("DistanceX", -1, 1, 29, 3, Q("382 mm")),
    Sketcher.Constraint("DistanceX", -1, 1, 30, 3, Q("392 mm")),
    Sketcher.Constraint("DistanceY", -1, 1, 32, 3, Q("224 mm")),
    Sketcher.Constraint("DistanceY", -1, 1, 33, 3, Q("239 mm")),
    Sketcher.Constraint("DistanceY", -1, 1, 34, 3, Q("254 mm")),
    Sketcher.Constraint("DistanceY", -1, 1, 35, 3, Q("269 mm")),
    Sketcher.Constraint("DistanceY", -1, 1, 36, 3, Q("284 mm")),
    Sketcher.Constraint("DistanceY", -1, 1, 37, 3, Q("299 mm")),
    Sketcher.Constraint("DistanceY", -1, 1, 38, 3, Q("314 mm")),
    Sketcher.Constraint("DistanceY", -1, 1, 39, 3, Q("329 mm")),
    Sketcher.Constraint("DistanceY", -1, 1, 48, 3, Q("336 mm")),
    Sketcher.Constraint("DistanceY", -1, 1, 49, 3, Q("438 mm")),
    Sketcher.Constraint("DistanceX", -1, 1, 50, 3, Q("224 mm")),
    Sketcher.Constraint("DistanceY", -1, 1, 51, 3, Q("228 mm")),
    Sketcher.Constraint("DistanceY", -1, 1, 52, 3, Q("233 mm")),
    Sketcher.Constraint("DistanceY", -1, 1, 53, 3, Q("264 mm")),
    Sketcher.Constraint("DistanceY", -1, 1, 55, 3, Q("300 mm")),
    Sketcher.Constraint("DistanceY", -1, 1, 56, 3, Q("305 mm")),
    Sketcher.Constraint("DistanceY", -1, 1, 64, 3, Q("341 mm")),
    Sketcher.Constraint("DistanceY", -1, 1, 65, 3, Q("372 mm")),
    Sketcher.Constraint("DistanceY", -1, 1, 66, 3, Q("377 mm")),
    Sketcher.Constraint("DistanceY", -1, 1, 67, 3, Q("408 mm")),
    Sketcher.Constraint("DistanceY", -1, 1, 68, 3, Q("413 mm")),
    Sketcher.Constraint("DistanceX", -1, 1, 6, 3, Q("36.958789 mm")),
    Sketcher.Constraint("DistanceX", -1, 1, 13, 3, Q("187.041211 mm")),
])
pad1 = body.newObject("PartDesign::Pad", "Pad")
pad1.Profile = sketch1
pad1.Length = 3
pad1.Reversed = True

doc.recompute()
